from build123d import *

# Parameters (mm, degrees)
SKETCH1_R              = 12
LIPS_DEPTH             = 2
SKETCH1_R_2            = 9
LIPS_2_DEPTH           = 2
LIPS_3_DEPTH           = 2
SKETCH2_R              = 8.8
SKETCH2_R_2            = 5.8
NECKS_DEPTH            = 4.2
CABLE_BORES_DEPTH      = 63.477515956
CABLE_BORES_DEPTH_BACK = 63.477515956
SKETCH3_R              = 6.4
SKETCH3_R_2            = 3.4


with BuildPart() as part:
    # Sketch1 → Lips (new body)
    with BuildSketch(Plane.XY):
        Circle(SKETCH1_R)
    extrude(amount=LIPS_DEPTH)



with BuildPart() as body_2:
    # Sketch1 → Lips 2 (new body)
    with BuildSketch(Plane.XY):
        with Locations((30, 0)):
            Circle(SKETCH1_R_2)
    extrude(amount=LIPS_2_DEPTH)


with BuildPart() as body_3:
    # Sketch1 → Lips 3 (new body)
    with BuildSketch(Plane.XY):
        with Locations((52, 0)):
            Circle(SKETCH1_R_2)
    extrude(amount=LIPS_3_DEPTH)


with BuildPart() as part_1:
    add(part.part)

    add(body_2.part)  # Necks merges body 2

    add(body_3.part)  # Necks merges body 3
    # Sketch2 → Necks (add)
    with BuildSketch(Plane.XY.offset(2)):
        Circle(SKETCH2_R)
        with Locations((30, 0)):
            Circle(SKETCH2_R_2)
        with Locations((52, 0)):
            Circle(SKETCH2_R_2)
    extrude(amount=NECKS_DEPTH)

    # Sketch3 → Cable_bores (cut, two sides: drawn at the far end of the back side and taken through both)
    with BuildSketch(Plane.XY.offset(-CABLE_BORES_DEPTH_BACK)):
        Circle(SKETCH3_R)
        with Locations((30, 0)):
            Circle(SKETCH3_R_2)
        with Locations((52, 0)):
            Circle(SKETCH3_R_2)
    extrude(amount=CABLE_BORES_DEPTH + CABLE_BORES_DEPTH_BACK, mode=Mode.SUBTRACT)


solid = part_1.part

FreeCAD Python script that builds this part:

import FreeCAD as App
import Part
import Sketcher

V = App.Vector

doc = App.newDocument("Part")
body = doc.addObject("PartDesign::Body", "Body")

sketch1 = body.newObject("Sketcher::SketchObject", "Sketch")
sketch1.AttachmentSupport = (doc.getObject("XY_Plane"), [""])
sketch1.MapMode = "FlatFace"
sketch1.addGeometry(Part.Circle(V(0, 0, 0), V(0, 0, 1), 12), False)
sketch1.addConstraint(Sketcher.Constraint("Coincident", 0, 3, -1, 1))
sketch1.addConstraint(Sketcher.Constraint("Diameter", 0, 24.0))
pad1 = body.newObject("PartDesign::Pad", "Pad")
pad1.Profile = sketch1
pad1.Length = 2
body2 = doc.addObject("PartDesign::Body", "Body001")

sketch2 = body2.newObject("Sketcher::SketchObject", "Sketch001")
sketch2.AttachmentSupport = (doc.getObject("XY_Plane001"), [""])
sketch2.MapMode = "FlatFace"
sketch2.addGeometry(Part.Circle(V(30, 0, 0), V(0, 0, 1), 9), False)
sketch2.addConstraint(Sketcher.Constraint("PointOnObject", 0, 3, -1))
sketch2.addConstraint(Sketcher.Constraint("Diameter", 0, 18.0))
sketch2.addConstraint(Sketcher.Constraint("DistanceX", -1, 1, 0, 3, 30.0))
pad2 = body2.newObject("PartDesign::Pad", "Pad001")
pad2.Profile = sketch2
pad2.Length = 2
body3 = doc.addObject("PartDesign::Body", "Body002")

sketch3 = body3.newObject("Sketcher::SketchObject", "Sketch002")
sketch3.AttachmentSupport = (doc.getObject("XY_Plane002"), [""])
sketch3.MapMode = "FlatFace"
sketch3.addGeometry(Part.Circle(V(52, 0, 0), V(0, 0, 1), 9), False)
sketch3.addConstraint(Sketcher.Constraint("PointOnObject", 0, 3, -1))
sketch3.addConstraint(Sketcher.Constraint("Diameter", 0, 18.0))
sketch3.addConstraint(Sketcher.Constraint("DistanceX", -1, 1, 0, 3, 52.0))
pad3 = body3.newObject("PartDesign::Pad", "Pad002")
pad3.Profile = sketch3
pad3.Length = 2
body.AllowCompound = True
doc.recompute()

boolean = body.newObject("PartDesign::Boolean", "Boolean")
boolean.Type = "Fuse"
boolean.addObjects([body2])
doc.recompute()

boolean2 = body.newObject("PartDesign::Boolean", "Boolean001")
boolean2.Type = "Fuse"
boolean2.addObjects([body3])

sketch4 = body.newObject("Sketcher::SketchObject", "Sketch003")
sketch4.AttachmentSupport = (doc.getObject("XY_Plane"), [""])
sketch4.MapMode = "FlatFace"
sketch4.AttachmentOffset = App.Placement(V(0, 0, 2), App.Rotation())
sketch4.addGeometry(Part.Circle(V(0, 0, 0), V(0, 0, 1), 9), False)
sketch4.addGeometry(Part.Circle(V(30, 0, 0), V(0, 0, 1), 6), False)
sketch4.addGeometry(Part.Circle(V(52, 0, 0), V(0, 0, 1), 6), False)
sketch4.addConstraint(Sketcher.Constraint("Coincident", 0, 3, -1, 1))
sketch4.addConstraint(Sketcher.Constraint("Equal", 1, 2))
sketch4.addConstraint(Sketcher.Constraint("PointOnObject", 1, 3, -1))
sketch4.addConstraint(Sketcher.Constraint("PointOnObject", 2, 3, -1))
sketch4.addConstraint(Sketcher.Constraint("Diameter", 0, 17.6))
sketch4.addConstraint(Sketcher.Constraint("Diameter", 1, 11.6))
sketch4.addConstraint(Sketcher.Constraint("DistanceX", -1, 1, 1, 3, 30.0))
sketch4.addConstraint(Sketcher.Constraint("DistanceX", -1, 1, 2, 3, 52.0))
pad4 = body.newObject("PartDesign::Pad", "Pad003")
pad4.Profile = sketch4
pad4.Length = 4.2

sketch5 = body.newObject("Sketcher::SketchObject", "Sketch004")
sketch5.AttachmentSupport = (doc.getObject("XY_Plane"), [""])
sketch5.MapMode = "FlatFace"
sketch5.addGeometry(Part.Circle(V(0, 0, 0), V(0, 0, 1), 6.4), False)
sketch5.addGeometry(Part.Circle(V(30, 0, 0), V(0, 0, 1), 3.4), False)
sketch5.addGeometry(Part.Circle(V(52, 0, 0), V(0, 0, 1), 3.4), False)
sketch5.addConstraint(Sketcher.Constraint("Coincident", 0, 3, -1, 1))
sketch5.addConstraint(Sketcher.Constraint("Equal", 1, 2))
sketch5.addConstraint(Sketcher.Constraint("PointOnObject", 1, 3, -1))
sketch5.addConstraint(Sketcher.Constraint("PointOnObject", 2, 3, -1))
sketch5.addConstraint(Sketcher.Constraint("Diameter", 0, 12.8))
sketch5.addConstraint(Sketcher.Constraint("Diameter", 1, 6.8))
sketch5.addConstraint(Sketcher.Constraint("DistanceX", -1, 1, 1, 3, 30.0))
sketch5.addConstraint(Sketcher.Constraint("DistanceX", -1, 1, 2, 3, 52.0))
pocket1 = body.newObject("PartDesign::Pocket", "Pocket")
pocket1.Profile = sketch5
pocket1.Type = "ThroughAll"
pocket1.Midplane = True

doc.recompute()
